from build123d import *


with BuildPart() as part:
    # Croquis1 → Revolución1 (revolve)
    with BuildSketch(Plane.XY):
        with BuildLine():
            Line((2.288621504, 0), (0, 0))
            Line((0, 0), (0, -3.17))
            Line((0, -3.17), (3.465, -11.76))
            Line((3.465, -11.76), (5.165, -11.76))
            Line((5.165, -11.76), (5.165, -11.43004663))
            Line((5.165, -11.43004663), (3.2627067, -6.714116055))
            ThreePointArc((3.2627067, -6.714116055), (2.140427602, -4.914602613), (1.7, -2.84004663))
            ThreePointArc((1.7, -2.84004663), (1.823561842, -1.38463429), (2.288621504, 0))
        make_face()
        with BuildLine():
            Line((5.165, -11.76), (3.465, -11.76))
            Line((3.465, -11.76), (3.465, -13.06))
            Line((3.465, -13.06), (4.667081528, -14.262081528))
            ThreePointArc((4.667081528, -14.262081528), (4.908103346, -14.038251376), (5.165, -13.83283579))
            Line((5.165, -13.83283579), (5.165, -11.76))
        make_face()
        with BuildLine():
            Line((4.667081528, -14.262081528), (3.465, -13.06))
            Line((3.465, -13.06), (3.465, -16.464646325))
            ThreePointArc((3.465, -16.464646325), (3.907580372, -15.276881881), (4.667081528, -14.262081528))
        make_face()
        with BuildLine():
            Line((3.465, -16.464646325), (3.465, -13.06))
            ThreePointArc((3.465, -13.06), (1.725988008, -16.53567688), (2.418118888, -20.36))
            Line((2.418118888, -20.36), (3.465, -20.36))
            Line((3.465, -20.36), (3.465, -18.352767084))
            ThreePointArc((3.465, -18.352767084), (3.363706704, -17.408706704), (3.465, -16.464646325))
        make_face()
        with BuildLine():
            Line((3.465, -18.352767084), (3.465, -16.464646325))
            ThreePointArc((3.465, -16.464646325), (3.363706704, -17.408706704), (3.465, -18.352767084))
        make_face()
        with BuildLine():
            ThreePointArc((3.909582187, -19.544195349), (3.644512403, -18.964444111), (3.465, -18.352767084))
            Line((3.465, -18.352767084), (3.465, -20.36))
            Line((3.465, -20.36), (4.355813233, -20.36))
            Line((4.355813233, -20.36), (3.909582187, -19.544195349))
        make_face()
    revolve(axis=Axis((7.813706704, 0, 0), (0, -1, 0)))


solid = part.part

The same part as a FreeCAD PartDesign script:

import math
import FreeCAD as App
import Part
import Sketcher
Q = App.Units.Quantity

doc = App.newDocument("Part")
body = doc.addObject("PartDesign::Body", "Body")

sketch1 = body.newObject("Sketcher::SketchObject", "Sketch")
sketch1.AttachmentSupport = (doc.getObject("XY_Plane"), [""])
sketch1.MapMode = "FlatFace"
sketch1.addGeometry(Part.LineSegment(App.Vector(2.288622, 0, 0), App.Vector(0, 0, 0)), False)
sketch1.addGeometry(Part.LineSegment(App.Vector(0, 0, 0), App.Vector(0, -3.17, 0)), False)
sketch1.addGeometry(Part.LineSegment(App.Vector(0, -3.17, 0), App.Vector(3.465, -11.76, 0)), False)
sketch1.addGeometry(Part.LineSegment(App.Vector(3.465, -11.76, 0), App.Vector(3.465, -13.06, 0)), False)
sketch1.addGeometry(Part.ArcOfCircle(Part.Circle(App.Vector(7.813707, -17.408707, 0), App.Vector(0, 0, 1), 6.15), math.radians(135), math.radians(208.677897)), False)
sketch1.addGeometry(Part.LineSegment(App.Vector(2.418119, -20.36, 0), App.Vector(4.355813, -20.36, 0)), False)
sketch1.addGeometry(Part.LineSegment(App.Vector(4.355813, -20.36, 0), App.Vector(3.909582, -19.544195, 0)), False)
sketch1.addGeometry(Part.ArcOfCircle(Part.Circle(App.Vector(7.813707, -17.408707, 0), App.Vector(0, 0, 1), 4.45), math.radians(-167.751716), math.radians(-151.322103)), False)
sketch1.addGeometry(Part.LineSegment(App.Vector(3.465, -18.352767, 0), App.Vector(3.465, -16.464646, 0)), False)
sketch1.addGeometry(Part.ArcOfCircle(Part.Circle(App.Vector(7.813707, -17.408707, 0), App.Vector(0, 0, 1), 4.45), math.radians(135), math.radians(167.751716)), False)
sketch1.addGeometry(Part.ArcOfCircle(Part.Circle(App.Vector(7.813707, -17.408707, 0), App.Vector(0, 0, 1), 4.45), math.radians(126.52796), math.radians(135)), False)
sketch1.addGeometry(Part.LineSegment(App.Vector(5.165, -13.832836, 0), App.Vector(5.165, -11.430047, 0)), False)
sketch1.addGeometry(Part.LineSegment(App.Vector(5.165, -11.430047, 0), App.Vector(3.262707, -6.714116, 0)), False)
sketch1.addGeometry(Part.ArcOfCircle(Part.Circle(App.Vector(7.813707, -2.626138, 0), App.Vector(0, 0, 1), 6.117448), math.radians(-177.99613), math.radians(-138.067937)), False)
sketch1.addGeometry(Part.ArcOfCircle(Part.Circle(App.Vector(7.813707, -2.626138, 0), App.Vector(0, 0, 1), 6.117448), math.radians(154.57771), math.radians(182.00387)), False)
sketch1.addGeometry(Part.LineSegment(App.Vector(7.813707, 0, 0), App.Vector(7.813707, -20.36, 0)), True)
sketch1.addConstraint(Sketcher.Constraint("Coincident", 0, 2, 1, 1))
sketch1.addConstraint(Sketcher.Constraint("Coincident", 1, 2, 2, 1))
sketch1.addConstraint(Sketcher.Constraint("Coincident", 2, 2, 3, 1))
sketch1.addConstraint(Sketcher.Constraint("Coincident", 3, 2, 4, 1))
sketch1.addConstraint(Sketcher.Constraint("Coincident", 4, 2, 5, 1))
sketch1.addConstraint(Sketcher.Constraint("Coincident", 5, 2, 6, 1))
sketch1.addConstraint(Sketcher.Constraint("Tangent", 6, 2, 7, 2))
sketch1.addConstraint(Sketcher.Constraint("Coincident", 7, 1, 8, 1))
sketch1.addConstraint(Sketcher.Constraint("Coincident", 8, 2, 9, 2))
sketch1.addConstraint(Sketcher.Constraint("Tangent", 9, 1, 10, 2))
sketch1.addConstraint(Sketcher.Constraint("Coincident", 10, 1, 11, 1))
sketch1.addConstraint(Sketcher.Constraint("Coincident", 11, 2, 12, 1))
sketch1.addConstraint(Sketcher.Constraint("Coincident", 12, 2, 13, 2))
sketch1.addConstraint(Sketcher.Constraint("Tangent", 13, 1, 14, 2))
sketch1.addConstraint(Sketcher.Constraint("Coincident", 14, 1, 0, 1))
sketch1.addConstraint(Sketcher.Constraint("Horizontal", 0))
sketch1.addConstraint(Sketcher.Constraint("Vertical", 1))
sketch1.addConstraint(Sketcher.Constraint("Vertical", 3))
sketch1.addConstraint(Sketcher.Constraint("Horizontal", 5))
sketch1.addConstraint(Sketcher.Constraint("Vertical", 8))
sketch1.addConstraint(Sketcher.Constraint("Vertical", 11))
sketch1.addConstraint(Sketcher.Constraint("Vertical", 15))
sketch1.addConstraint(Sketcher.Constraint("Coincident", 0, 2, -1, 1))
sketch1.addConstraint(Sketcher.Constraint("Coincident", 7, 3, 4, 3))
sketch1.addConstraint(Sketcher.Constraint("Coincident", 9, 3, 4, 3))
sketch1.addConstraint(Sketcher.Constraint("Equal", 7, 9))
sketch1.addConstraint(Sketcher.Constraint("Equal", 9, 10))
sketch1.addConstraint(Sketcher.Constraint("Equal", 13, 14))
sketch1.addConstraint(Sketcher.Constraint("PointOnObject", 15, 1, -1))
sketch1.addConstraint(Sketcher.Constraint("Parallel", 2, 12))
sketch1.addConstraint(Sketcher.Constraint("Horizontal", 5, 2, 15, 2))
sketch1.addConstraint(Sketcher.Constraint("Vertical", 10, 3, 13, 3))
sketch1.addConstraint(Sketcher.Constraint("Vertical", 3, 2, 7, 1))
sketch1.addConstraint(Sketcher.Constraint("Vertical", 14, 3, 15, 1))
sketch1.addConstraint(Sketcher.Constraint("Radius", 4, Q("6.15 mm")))
sketch1.addConstraint(Sketcher.Constraint("Radius", 7, Q("4.45 mm")))
sketch1.addConstraint(Sketcher.Constraint("DistanceY", 3, 2, 3, 1, Q("1.3 mm")))
sketch1.addConstraint(Sketcher.Constraint("DistanceY", 1, 2, 1, 1, Q("3.17 mm")))
sketch1.addConstraint(Sketcher.Constraint("DistanceY", 15, 2, 15, 1, Q("20.36 mm")))
sketch1.addConstraint(Sketcher.Constraint("DistanceX", -1, 1, 13, 1, Q("1.7 mm")))
sketch1.addConstraint(Sketcher.Constraint("DistanceY", 4, 2, 3, 2, Q("7.3 mm")))
sketch1.addConstraint(Sketcher.Constraint("DistanceX", 3, 2, 10, 1, Q("1.7 mm")))
sketch1.addConstraint(Sketcher.Constraint("DistanceX", -1, 1, 2, 2, Q("3.465 mm")))
sketch1.addConstraint(Sketcher.Constraint("Radius", 13, Q("6.117448 mm")))
sketch1.addConstraint(Sketcher.Constraint("DistanceX", 12, 2, 14, 3, Q("4.551 mm")))
sketch1.addConstraint(Sketcher.Constraint("DistanceX", 0, 2, 0, 1, Q("2.288622 mm")))
sketch1.addConstraint(Sketcher.Constraint("DistanceY", 8, 1, 8, 2, Q("1.888121 mm")))
sketch1.addConstraint(Sketcher.Constraint("Distance", 6, Q("0.929871 mm")))
sketch1.addConstraint(Sketcher.Constraint("DistanceX", -1, 1, 9, 1, Q("4.667082 mm")))
revolution = body.newObject("PartDesign::Revolution", "Revolution")
revolution.Profile = sketch1
revolution.ReferenceAxis = (sketch1, ["Axis0"])
revolution.Angle = 360

doc.recompute()
